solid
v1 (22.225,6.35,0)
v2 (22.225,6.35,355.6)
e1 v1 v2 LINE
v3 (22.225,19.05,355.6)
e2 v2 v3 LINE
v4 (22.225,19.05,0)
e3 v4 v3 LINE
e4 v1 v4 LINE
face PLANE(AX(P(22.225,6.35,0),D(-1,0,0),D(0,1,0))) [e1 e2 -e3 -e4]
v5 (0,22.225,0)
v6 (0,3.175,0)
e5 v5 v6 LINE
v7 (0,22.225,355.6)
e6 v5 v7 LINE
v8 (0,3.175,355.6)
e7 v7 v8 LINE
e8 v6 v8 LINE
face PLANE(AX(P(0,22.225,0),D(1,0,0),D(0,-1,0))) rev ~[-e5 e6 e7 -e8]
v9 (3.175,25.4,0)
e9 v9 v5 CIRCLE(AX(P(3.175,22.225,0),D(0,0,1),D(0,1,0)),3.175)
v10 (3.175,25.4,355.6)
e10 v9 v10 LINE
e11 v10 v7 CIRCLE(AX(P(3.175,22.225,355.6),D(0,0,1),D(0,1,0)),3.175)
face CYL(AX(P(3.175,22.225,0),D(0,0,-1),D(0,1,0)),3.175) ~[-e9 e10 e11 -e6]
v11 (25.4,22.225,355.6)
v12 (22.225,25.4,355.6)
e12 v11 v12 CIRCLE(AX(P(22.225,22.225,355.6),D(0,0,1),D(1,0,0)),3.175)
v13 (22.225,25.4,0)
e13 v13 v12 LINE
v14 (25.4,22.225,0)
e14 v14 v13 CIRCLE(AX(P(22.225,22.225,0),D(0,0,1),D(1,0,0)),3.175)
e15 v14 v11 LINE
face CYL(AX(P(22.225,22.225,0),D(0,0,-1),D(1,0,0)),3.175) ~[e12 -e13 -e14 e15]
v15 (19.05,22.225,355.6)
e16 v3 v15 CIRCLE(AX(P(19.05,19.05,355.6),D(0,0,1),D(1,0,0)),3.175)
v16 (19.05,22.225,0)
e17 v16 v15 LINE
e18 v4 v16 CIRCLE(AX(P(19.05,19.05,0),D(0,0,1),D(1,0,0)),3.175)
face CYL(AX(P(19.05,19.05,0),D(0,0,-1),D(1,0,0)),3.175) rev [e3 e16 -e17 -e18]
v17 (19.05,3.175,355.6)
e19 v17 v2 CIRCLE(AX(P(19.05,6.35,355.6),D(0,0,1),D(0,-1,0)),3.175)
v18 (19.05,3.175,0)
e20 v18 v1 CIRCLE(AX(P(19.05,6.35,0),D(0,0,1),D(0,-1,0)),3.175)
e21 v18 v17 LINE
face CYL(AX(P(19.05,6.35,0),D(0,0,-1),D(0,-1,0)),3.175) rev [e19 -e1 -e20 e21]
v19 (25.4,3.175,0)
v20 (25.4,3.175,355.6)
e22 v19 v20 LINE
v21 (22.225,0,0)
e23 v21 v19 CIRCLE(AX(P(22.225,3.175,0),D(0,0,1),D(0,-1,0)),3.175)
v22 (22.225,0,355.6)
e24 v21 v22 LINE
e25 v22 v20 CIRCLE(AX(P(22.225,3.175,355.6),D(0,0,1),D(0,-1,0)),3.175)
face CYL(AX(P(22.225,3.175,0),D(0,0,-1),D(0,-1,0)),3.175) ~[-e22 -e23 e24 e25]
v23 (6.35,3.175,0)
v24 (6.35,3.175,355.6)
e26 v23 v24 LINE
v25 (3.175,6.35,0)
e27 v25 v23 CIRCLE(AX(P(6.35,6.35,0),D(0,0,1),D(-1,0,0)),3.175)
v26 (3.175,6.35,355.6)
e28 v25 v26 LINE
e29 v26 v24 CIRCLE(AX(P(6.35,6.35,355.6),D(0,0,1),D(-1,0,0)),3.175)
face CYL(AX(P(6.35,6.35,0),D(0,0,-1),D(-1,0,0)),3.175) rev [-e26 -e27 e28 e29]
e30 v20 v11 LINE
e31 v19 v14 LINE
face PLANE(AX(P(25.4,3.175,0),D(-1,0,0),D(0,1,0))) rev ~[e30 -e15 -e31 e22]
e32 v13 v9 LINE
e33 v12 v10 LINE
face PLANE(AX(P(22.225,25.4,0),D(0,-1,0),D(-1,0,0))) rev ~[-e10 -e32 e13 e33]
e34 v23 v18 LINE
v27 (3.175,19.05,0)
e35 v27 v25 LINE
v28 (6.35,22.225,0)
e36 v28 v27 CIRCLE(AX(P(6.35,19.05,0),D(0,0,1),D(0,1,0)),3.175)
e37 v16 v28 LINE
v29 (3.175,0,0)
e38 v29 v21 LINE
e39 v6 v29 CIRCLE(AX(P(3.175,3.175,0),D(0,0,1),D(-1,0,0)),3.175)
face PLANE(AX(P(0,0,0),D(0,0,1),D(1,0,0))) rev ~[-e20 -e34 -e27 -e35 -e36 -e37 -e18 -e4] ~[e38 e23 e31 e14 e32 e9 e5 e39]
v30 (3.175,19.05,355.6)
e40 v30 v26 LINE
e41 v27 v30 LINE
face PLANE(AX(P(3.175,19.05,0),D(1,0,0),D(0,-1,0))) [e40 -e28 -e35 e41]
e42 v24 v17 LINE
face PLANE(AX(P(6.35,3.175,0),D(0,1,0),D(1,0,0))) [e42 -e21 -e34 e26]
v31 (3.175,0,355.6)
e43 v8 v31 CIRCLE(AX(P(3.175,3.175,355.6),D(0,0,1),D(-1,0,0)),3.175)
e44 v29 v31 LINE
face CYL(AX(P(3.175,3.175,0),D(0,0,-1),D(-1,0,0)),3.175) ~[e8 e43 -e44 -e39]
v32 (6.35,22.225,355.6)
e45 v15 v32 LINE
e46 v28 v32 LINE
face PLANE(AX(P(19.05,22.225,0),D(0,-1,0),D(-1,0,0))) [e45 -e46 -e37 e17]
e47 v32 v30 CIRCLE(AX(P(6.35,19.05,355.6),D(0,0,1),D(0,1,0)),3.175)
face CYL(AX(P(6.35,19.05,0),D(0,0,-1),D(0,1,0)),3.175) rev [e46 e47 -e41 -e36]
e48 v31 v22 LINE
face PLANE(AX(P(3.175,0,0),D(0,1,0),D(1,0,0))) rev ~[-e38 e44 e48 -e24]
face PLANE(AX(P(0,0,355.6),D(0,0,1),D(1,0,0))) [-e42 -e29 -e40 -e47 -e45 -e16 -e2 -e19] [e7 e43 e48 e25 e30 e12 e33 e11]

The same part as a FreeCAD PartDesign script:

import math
import FreeCAD as App
import Part
import Sketcher
Q = App.Units.Quantity

doc = App.newDocument("Part")
body = doc.addObject("PartDesign::Body", "Body")

# Sketch on XY plane
sketch1 = body.newObject("Sketcher::SketchObject", "Sketch")
sketch1.AttachmentSupport = (doc.getObject("XY_Plane"), [""])
sketch1.MapMode = "FlatFace"
sketch1.addGeometry([
    Part.ArcOfCircle(Part.Circle(App.Vector(3.2, 3.2, 0), App.Vector(0, 0, 1), 3.2), math.radians(180), math.radians(270)),  # 0
    Part.LineSegment(App.Vector(3.2, 0, 0), App.Vector(22.2, 0, 0)),  # 1
    Part.ArcOfCircle(Part.Circle(App.Vector(22.2, 3.2, 0), App.Vector(0, 0, 1), 3.2), math.radians(-90), math.radians(0)),  # 2
    Part.LineSegment(App.Vector(25.4, 3.2, 0), App.Vector(25.4, 22.2, 0)),  # 3
    Part.ArcOfCircle(Part.Circle(App.Vector(22.2, 22.2, 0), App.Vector(0, 0, 1), 3.2), math.radians(0), math.radians(90)),  # 4
    Part.LineSegment(App.Vector(22.2, 25.4, 0), App.Vector(3.2, 25.4, 0)),  # 5
    Part.ArcOfCircle(Part.Circle(App.Vector(3.2, 22.2, 0), App.Vector(0, 0, 1), 3.2), math.radians(90), math.radians(180)),  # 6
    Part.LineSegment(App.Vector(0, 22.2, 0), App.Vector(0, 3.2, 0)),  # 7
    Part.LineSegment(App.Vector(19.1, 3.2, 0), App.Vector(6.3, 3.2, 0)),  # 8
    Part.ArcOfCircle(Part.Circle(App.Vector(6.3, 6.3, 0), App.Vector(0, 0, 1), 3.2), math.radians(180), math.radians(270)),  # 9
    Part.LineSegment(App.Vector(3.2, 6.3, 0), App.Vector(3.2, 19.1, 0)),  # 10
    Part.ArcOfCircle(Part.Circle(App.Vector(6.3, 19.1, 0), App.Vector(0, 0, 1), 3.2), math.radians(90), math.radians(180)),  # 11
    Part.LineSegment(App.Vector(6.3, 22.2, 0), App.Vector(19.1, 22.2, 0)),  # 12
    Part.ArcOfCircle(Part.Circle(App.Vector(19.1, 19.1, 0), App.Vector(0, 0, 1), 3.2), math.radians(0), math.radians(90)),  # 13
    Part.LineSegment(App.Vector(22.2, 19.1, 0), App.Vector(22.2, 6.3, 0)),  # 14
    Part.ArcOfCircle(Part.Circle(App.Vector(19.1, 6.3, 0), App.Vector(0, 0, 1), 3.2), math.radians(-90), math.radians(0)),  # 15
], False)
sketch1.addConstraint([
    Sketcher.Constraint("Tangent", 0, 2, 1, 1),
    Sketcher.Constraint("Tangent", 1, 2, 2, 1),
    Sketcher.Constraint("Tangent", 2, 2, 3, 1),
    Sketcher.Constraint("Tangent", 3, 2, 4, 1),
    Sketcher.Constraint("Tangent", 4, 2, 5, 1),
    Sketcher.Constraint("Tangent", 5, 2, 6, 1),
    Sketcher.Constraint("Tangent", 6, 2, 7, 1),
    Sketcher.Constraint("Tangent", 7, 2, 0, 1),
    Sketcher.Constraint("Tangent", 8, 2, 9, 2),
    Sketcher.Constraint("Tangent", 9, 1, 10, 1),
    Sketcher.Constraint("Tangent", 10, 2, 11, 2),
    Sketcher.Constraint("Tangent", 11, 1, 12, 1),
    Sketcher.Constraint("Tangent", 12, 2, 13, 2),
    Sketcher.Constraint("Tangent", 13, 1, 14, 1),
    Sketcher.Constraint("Tangent", 14, 2, 15, 2),
    Sketcher.Constraint("Tangent", 15, 1, 8, 1),
    Sketcher.Constraint("Horizontal", 1),
    Sketcher.Constraint("Vertical", 3),
    Sketcher.Constraint("Horizontal", 5),
    Sketcher.Constraint("Vertical", 7),
    Sketcher.Constraint("Horizontal", 8),
    Sketcher.Constraint("Vertical", 10),
    Sketcher.Constraint("Horizontal", 12),
    Sketcher.Constraint("Vertical", 14),
    Sketcher.Constraint("Equal", 0, 2),
    Sketcher.Constraint("Equal", 2, 4),
    Sketcher.Constraint("Equal", 4, 6),
    Sketcher.Constraint("Equal", 6, 9),
    Sketcher.Constraint("Equal", 9, 11),
    Sketcher.Constraint("Equal", 11, 13),
    Sketcher.Constraint("Equal", 13, 15),
    Sketcher.Constraint("PointOnObject", 0, 2, -1),
    Sketcher.Constraint("PointOnObject", 6, 2, -2),
    Sketcher.Constraint("Horizontal", 7, 2, 8, 2),
    Sketcher.Constraint("Horizontal", 6, 2, 11, 1),
    Sketcher.Constraint("Vertical", 5, 2, 9, 1),
    Sketcher.Constraint("Vertical", 4, 2, 13, 1),
    Sketcher.Constraint("Equal", 5, 3),
    Sketcher.Constraint("DistanceX", -1, 1, 2, 2, Q("1 in")),
    Sketcher.Constraint("Radius", 0, Q("0.125 in")),
])
pad1 = body.newObject("PartDesign::Pad", "Pad")
pad1.Profile = sketch1
pad1.Length = Q("14 in")

doc.recompute()
